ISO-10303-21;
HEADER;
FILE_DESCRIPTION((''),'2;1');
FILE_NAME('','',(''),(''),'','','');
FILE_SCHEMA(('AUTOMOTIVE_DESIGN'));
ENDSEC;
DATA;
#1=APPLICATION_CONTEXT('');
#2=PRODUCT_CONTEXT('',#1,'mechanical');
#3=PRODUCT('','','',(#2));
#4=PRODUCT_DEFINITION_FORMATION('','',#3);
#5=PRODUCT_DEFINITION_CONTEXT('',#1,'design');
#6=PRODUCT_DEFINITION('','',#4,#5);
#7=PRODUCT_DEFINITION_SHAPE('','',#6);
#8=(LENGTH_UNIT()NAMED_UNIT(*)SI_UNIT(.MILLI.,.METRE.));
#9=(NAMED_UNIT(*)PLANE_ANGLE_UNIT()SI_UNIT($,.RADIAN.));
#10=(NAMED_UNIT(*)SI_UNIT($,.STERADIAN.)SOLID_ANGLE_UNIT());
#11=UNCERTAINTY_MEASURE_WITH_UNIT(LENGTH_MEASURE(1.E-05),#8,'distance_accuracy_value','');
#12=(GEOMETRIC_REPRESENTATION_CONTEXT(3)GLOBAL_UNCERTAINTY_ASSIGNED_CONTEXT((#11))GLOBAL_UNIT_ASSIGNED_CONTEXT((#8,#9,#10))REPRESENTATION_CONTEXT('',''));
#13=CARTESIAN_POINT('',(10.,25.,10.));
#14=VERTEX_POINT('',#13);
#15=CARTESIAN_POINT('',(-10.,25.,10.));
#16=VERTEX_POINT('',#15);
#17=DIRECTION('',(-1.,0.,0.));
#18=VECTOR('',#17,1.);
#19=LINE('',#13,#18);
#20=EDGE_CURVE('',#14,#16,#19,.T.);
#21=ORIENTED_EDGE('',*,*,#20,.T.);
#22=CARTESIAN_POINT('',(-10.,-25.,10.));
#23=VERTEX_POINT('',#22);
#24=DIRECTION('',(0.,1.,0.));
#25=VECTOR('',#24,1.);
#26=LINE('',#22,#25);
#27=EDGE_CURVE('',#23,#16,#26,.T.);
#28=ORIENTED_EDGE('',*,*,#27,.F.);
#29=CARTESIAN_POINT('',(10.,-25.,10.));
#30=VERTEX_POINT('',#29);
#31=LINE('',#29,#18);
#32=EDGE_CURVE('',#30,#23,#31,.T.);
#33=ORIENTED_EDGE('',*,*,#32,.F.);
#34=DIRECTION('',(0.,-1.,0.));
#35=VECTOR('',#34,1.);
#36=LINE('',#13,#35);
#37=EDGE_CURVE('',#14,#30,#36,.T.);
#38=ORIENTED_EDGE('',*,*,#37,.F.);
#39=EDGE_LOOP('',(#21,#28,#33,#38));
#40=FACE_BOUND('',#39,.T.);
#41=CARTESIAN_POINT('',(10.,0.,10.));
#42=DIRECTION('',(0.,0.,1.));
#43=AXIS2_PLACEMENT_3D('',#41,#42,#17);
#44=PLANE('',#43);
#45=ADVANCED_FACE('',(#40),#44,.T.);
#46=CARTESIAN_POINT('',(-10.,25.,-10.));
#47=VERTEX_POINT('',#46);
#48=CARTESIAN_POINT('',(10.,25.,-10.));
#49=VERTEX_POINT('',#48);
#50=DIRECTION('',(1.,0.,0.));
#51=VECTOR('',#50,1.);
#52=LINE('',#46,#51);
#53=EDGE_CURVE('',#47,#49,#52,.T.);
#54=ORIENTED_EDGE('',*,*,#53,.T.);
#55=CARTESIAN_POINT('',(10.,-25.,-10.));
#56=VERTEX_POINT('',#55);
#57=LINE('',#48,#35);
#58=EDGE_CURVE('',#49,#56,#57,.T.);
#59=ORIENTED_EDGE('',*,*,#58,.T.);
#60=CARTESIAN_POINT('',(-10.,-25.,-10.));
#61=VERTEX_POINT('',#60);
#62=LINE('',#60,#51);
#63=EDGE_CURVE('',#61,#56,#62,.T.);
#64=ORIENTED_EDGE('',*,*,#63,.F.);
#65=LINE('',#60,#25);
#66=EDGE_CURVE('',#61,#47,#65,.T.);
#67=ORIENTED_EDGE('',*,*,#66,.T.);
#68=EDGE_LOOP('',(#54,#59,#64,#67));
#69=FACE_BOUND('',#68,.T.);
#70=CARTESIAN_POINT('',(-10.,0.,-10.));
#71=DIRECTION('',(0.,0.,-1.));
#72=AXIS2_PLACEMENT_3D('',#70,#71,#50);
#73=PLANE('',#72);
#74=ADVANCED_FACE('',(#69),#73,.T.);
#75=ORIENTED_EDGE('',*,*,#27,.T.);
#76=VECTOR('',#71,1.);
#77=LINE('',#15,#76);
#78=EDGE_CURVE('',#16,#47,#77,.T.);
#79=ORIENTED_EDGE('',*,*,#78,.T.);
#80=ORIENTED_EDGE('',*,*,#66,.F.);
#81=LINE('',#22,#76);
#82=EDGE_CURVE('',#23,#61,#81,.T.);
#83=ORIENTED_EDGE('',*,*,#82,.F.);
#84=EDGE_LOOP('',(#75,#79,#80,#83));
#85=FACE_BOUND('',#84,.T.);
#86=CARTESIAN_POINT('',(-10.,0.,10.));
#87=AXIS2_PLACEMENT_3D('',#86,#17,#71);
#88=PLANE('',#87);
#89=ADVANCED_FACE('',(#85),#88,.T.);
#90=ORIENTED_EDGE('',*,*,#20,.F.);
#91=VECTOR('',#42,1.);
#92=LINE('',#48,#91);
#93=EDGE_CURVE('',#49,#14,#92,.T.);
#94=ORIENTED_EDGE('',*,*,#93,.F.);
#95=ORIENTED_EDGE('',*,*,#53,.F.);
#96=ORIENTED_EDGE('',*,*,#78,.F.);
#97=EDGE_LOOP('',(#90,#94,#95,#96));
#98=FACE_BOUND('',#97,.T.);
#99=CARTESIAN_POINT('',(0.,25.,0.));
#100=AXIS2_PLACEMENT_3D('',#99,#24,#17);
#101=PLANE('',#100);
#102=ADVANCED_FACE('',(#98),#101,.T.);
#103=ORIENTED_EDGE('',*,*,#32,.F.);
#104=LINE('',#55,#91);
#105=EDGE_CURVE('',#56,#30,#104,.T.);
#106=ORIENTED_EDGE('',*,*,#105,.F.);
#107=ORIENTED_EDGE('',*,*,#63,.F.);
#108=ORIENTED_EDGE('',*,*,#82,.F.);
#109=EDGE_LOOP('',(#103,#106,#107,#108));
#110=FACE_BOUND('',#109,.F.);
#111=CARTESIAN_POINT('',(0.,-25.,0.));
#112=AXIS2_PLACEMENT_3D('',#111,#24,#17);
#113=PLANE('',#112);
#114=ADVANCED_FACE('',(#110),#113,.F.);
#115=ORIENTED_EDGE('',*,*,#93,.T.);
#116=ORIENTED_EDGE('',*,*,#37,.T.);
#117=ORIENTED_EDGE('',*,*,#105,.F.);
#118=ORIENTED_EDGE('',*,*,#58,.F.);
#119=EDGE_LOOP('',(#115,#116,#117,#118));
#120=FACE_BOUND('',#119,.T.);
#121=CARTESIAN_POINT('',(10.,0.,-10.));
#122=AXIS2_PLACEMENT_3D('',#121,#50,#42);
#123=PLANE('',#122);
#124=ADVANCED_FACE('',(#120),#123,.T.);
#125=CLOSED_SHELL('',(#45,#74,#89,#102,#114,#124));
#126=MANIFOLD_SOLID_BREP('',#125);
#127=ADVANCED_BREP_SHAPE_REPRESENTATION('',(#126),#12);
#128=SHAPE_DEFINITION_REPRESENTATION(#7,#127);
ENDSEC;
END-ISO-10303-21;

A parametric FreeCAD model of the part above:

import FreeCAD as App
import Part
import Sketcher
from FreeCAD import Vector
Q = App.Units.Quantity

doc = App.newDocument("Part")
params = doc.addObject("Spreadsheet::Sheet", "Params")
for row, (alias, value) in enumerate([
    ("sketch1_width", "20 mm"),
    ("pad1_length", "50 mm"),
], start=1):
    params.set(f"A{row}", alias)
    params.set(f"B{row}", "=" + value)
    params.setAlias(f"B{row}", alias)

body = doc.addObject("PartDesign::Body", "Body")

# Sketch on XZ plane
sketch1 = doc.addObject("Sketcher::SketchObject", "Sketch")
body.addObject(sketch1)
sketch1.AttachmentSupport = (doc.XZ_Plane, [""])
sketch1.MapMode = "FlatFace"
sketch1.addGeometry([
    Part.LineSegment(Vector(10, -10, 0), Vector(-10, -10, 0)),
    Part.LineSegment(Vector(-10, -10, 0), Vector(-10, 10, 0)),
    Part.LineSegment(Vector(-10, 10, 0), Vector(10, 10, 0)),
    Part.LineSegment(Vector(10, 10, 0), Vector(10, -10, 0)),
], False)
sketch1.addConstraint([
    Sketcher.Constraint("Coincident", 0, 2, 1, 1),
    Sketcher.Constraint("Coincident", 1, 2, 2, 1),
    Sketcher.Constraint("Coincident", 2, 2, 3, 1),
    Sketcher.Constraint("Coincident", 3, 2, 0, 1),
    Sketcher.Constraint("Horizontal", 0),
    Sketcher.Constraint("Vertical", 1),
    Sketcher.Constraint("Horizontal", 2),
    Sketcher.Constraint("Vertical", 3),
    Sketcher.Constraint("Symmetric", 0, 2, 2, 2, -1, 1),
    Sketcher.Constraint("Equal", 2, 1),
    Sketcher.Constraint("DistanceX", 0, 2, 0, 1, Q("20 mm")),
])
sketch1.setExpression("Constraints[10]", "Params.sketch1_width")
pad1 = doc.addObject("PartDesign::Pad", "Pad")
body.addObject(pad1)
pad1.Profile = sketch1
pad1.setExpression("Length", "Params.pad1_length")
pad1.Midplane = True

doc.recompute()
